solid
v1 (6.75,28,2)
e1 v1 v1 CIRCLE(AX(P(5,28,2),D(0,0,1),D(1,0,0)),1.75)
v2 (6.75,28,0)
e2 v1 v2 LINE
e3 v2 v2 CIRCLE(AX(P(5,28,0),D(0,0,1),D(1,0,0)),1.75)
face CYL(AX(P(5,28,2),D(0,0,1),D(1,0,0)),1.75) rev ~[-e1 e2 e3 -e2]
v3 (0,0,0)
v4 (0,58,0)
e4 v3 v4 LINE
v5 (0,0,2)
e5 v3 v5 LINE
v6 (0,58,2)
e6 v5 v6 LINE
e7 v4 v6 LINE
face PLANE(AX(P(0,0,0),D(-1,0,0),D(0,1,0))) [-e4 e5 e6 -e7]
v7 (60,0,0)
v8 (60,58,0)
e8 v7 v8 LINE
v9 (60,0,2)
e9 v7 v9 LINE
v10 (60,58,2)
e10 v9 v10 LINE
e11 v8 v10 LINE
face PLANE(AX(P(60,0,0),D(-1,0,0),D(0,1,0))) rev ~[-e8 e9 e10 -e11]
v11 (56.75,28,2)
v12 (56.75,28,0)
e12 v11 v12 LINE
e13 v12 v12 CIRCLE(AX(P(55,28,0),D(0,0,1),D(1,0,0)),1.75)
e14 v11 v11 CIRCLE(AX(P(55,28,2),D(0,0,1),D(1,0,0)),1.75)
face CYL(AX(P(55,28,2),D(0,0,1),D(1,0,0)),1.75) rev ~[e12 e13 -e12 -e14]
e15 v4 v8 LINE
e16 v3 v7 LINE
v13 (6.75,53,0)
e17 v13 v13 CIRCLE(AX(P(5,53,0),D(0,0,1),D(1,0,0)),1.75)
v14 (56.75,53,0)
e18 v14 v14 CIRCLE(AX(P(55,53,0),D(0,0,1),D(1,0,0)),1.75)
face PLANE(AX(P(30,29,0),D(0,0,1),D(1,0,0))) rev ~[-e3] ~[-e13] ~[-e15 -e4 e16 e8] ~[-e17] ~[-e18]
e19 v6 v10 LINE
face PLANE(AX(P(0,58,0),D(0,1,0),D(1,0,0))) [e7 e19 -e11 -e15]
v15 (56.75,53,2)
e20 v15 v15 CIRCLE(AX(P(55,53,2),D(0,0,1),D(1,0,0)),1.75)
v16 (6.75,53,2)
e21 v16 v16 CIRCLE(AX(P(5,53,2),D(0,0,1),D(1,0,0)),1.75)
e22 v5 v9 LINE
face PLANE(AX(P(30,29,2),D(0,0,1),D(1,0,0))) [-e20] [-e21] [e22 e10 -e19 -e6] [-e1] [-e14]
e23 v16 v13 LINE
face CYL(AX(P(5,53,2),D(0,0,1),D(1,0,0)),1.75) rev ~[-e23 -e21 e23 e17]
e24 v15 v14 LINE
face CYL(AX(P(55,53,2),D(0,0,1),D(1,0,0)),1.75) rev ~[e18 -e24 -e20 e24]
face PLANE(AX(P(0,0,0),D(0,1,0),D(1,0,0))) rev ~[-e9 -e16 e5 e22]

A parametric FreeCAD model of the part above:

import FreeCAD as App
import Part
import Sketcher

V = App.Vector
Q = App.Units.Quantity

doc = App.newDocument("Part")
params = doc.addObject("Spreadsheet::Sheet", "Params")
for row, (alias, value) in enumerate([
    ("sketch1_width", "60 mm"),
    ("sketch1_height", "58 mm"),
    ("pad1_length", "2 mm"),
    ("sketch2_diameter", "3.5 mm"),
], start=1):
    params.set(f"A{row}", alias)
    params.set(f"B{row}", "=" + value)
    params.setAlias(f"B{row}", alias)

body = doc.addObject("PartDesign::Body", "Body")

# Sketch on XY plane
sketch1 = body.newObject("Sketcher::SketchObject", "Sketch")
sketch1.AttachmentSupport = (doc.getObject("XY_Plane"), [""])
sketch1.MapMode = "FlatFace"
sketch1.addGeometry([
    Part.LineSegment(V(0, 58, 0), V(0, 0, 0)),
    Part.LineSegment(V(0, 0, 0), V(60, 0, 0)),
    Part.LineSegment(V(60, 0, 0), V(60, 58, 0)),
    Part.LineSegment(V(60, 58, 0), V(0, 58, 0)),
], False)
sketch1.addConstraint([
    Sketcher.Constraint("Coincident", 0, 2, 1, 1),
    Sketcher.Constraint("Coincident", 1, 2, 2, 1),
    Sketcher.Constraint("Coincident", 2, 2, 3, 1),
    Sketcher.Constraint("Coincident", 3, 2, 0, 1),
    Sketcher.Constraint("Vertical", 0),
    Sketcher.Constraint("Horizontal", 1),
    Sketcher.Constraint("Vertical", 2),
    Sketcher.Constraint("Horizontal", 3),
    Sketcher.Constraint("Coincident", 0, 2, -1, 1),
    Sketcher.Constraint("DistanceX", 1, 1, 1, 2, Q("60 mm")),
    Sketcher.Constraint("DistanceY", 0, 2, 0, 1, Q("58 mm")),
])
sketch1.setExpression("Constraints[9]", "Params.sketch1_width")
sketch1.setExpression("Constraints[10]", "Params.sketch1_height")
pad1 = body.newObject("PartDesign::Pad", "Pad")
pad1.Profile = sketch1
pad1.setExpression("Length", "Params.pad1_length")

# Sketch on XY plane
sketch2 = body.newObject("Sketcher::SketchObject", "Sketch001")
sketch2.AttachmentSupport = (doc.getObject("XY_Plane"), [""])
sketch2.MapMode = "FlatFace"
sketch2.AttachmentOffset = App.Placement(V(0, 0, 2), App.Rotation())
sketch2.addGeometry([
    Part.Circle(V(5, 53, 0), V(0, 0, 1), 1.8),
    Part.Circle(V(5, 28, 0), V(0, 0, 1), 1.8),
    Part.Circle(V(55, 28, 0), V(0, 0, 1), 1.8),
    Part.Circle(V(55, 53, 0), V(0, 0, 1), 1.8),
], False)
sketch2.addConstraint([
    Sketcher.Constraint("Equal", 0, 1),
    Sketcher.Constraint("Equal", 1, 2),
    Sketcher.Constraint("Equal", 2, 3),
    Sketcher.Constraint("Horizontal", 1, 3, 2, 3),
    Sketcher.Constraint("Horizontal", 0, 3, 3, 3),
    Sketcher.Constraint("Vertical", 0, 3, 1, 3),
    Sketcher.Constraint("Vertical", 2, 3, 3, 3),
    Sketcher.Constraint("Diameter", 0, Q("3.5 mm")),
    Sketcher.Constraint("DistanceX", -1, 1, 0, 3, Q("5 mm")),
    Sketcher.Constraint("DistanceY", -1, 1, 0, 3, Q("53 mm")),
    Sketcher.Constraint("DistanceY", -1, 1, 1, 3, Q("28 mm")),
    Sketcher.Constraint("DistanceX", -1, 1, 2, 3, Q("55 mm")),
])
sketch2.setExpression("Constraints[7]", "Params.sketch2_diameter")
pocket1 = body.newObject("PartDesign::Pocket", "Pocket")
pocket1.Profile = sketch2
pocket1.Type = "ThroughAll"

doc.recompute()
